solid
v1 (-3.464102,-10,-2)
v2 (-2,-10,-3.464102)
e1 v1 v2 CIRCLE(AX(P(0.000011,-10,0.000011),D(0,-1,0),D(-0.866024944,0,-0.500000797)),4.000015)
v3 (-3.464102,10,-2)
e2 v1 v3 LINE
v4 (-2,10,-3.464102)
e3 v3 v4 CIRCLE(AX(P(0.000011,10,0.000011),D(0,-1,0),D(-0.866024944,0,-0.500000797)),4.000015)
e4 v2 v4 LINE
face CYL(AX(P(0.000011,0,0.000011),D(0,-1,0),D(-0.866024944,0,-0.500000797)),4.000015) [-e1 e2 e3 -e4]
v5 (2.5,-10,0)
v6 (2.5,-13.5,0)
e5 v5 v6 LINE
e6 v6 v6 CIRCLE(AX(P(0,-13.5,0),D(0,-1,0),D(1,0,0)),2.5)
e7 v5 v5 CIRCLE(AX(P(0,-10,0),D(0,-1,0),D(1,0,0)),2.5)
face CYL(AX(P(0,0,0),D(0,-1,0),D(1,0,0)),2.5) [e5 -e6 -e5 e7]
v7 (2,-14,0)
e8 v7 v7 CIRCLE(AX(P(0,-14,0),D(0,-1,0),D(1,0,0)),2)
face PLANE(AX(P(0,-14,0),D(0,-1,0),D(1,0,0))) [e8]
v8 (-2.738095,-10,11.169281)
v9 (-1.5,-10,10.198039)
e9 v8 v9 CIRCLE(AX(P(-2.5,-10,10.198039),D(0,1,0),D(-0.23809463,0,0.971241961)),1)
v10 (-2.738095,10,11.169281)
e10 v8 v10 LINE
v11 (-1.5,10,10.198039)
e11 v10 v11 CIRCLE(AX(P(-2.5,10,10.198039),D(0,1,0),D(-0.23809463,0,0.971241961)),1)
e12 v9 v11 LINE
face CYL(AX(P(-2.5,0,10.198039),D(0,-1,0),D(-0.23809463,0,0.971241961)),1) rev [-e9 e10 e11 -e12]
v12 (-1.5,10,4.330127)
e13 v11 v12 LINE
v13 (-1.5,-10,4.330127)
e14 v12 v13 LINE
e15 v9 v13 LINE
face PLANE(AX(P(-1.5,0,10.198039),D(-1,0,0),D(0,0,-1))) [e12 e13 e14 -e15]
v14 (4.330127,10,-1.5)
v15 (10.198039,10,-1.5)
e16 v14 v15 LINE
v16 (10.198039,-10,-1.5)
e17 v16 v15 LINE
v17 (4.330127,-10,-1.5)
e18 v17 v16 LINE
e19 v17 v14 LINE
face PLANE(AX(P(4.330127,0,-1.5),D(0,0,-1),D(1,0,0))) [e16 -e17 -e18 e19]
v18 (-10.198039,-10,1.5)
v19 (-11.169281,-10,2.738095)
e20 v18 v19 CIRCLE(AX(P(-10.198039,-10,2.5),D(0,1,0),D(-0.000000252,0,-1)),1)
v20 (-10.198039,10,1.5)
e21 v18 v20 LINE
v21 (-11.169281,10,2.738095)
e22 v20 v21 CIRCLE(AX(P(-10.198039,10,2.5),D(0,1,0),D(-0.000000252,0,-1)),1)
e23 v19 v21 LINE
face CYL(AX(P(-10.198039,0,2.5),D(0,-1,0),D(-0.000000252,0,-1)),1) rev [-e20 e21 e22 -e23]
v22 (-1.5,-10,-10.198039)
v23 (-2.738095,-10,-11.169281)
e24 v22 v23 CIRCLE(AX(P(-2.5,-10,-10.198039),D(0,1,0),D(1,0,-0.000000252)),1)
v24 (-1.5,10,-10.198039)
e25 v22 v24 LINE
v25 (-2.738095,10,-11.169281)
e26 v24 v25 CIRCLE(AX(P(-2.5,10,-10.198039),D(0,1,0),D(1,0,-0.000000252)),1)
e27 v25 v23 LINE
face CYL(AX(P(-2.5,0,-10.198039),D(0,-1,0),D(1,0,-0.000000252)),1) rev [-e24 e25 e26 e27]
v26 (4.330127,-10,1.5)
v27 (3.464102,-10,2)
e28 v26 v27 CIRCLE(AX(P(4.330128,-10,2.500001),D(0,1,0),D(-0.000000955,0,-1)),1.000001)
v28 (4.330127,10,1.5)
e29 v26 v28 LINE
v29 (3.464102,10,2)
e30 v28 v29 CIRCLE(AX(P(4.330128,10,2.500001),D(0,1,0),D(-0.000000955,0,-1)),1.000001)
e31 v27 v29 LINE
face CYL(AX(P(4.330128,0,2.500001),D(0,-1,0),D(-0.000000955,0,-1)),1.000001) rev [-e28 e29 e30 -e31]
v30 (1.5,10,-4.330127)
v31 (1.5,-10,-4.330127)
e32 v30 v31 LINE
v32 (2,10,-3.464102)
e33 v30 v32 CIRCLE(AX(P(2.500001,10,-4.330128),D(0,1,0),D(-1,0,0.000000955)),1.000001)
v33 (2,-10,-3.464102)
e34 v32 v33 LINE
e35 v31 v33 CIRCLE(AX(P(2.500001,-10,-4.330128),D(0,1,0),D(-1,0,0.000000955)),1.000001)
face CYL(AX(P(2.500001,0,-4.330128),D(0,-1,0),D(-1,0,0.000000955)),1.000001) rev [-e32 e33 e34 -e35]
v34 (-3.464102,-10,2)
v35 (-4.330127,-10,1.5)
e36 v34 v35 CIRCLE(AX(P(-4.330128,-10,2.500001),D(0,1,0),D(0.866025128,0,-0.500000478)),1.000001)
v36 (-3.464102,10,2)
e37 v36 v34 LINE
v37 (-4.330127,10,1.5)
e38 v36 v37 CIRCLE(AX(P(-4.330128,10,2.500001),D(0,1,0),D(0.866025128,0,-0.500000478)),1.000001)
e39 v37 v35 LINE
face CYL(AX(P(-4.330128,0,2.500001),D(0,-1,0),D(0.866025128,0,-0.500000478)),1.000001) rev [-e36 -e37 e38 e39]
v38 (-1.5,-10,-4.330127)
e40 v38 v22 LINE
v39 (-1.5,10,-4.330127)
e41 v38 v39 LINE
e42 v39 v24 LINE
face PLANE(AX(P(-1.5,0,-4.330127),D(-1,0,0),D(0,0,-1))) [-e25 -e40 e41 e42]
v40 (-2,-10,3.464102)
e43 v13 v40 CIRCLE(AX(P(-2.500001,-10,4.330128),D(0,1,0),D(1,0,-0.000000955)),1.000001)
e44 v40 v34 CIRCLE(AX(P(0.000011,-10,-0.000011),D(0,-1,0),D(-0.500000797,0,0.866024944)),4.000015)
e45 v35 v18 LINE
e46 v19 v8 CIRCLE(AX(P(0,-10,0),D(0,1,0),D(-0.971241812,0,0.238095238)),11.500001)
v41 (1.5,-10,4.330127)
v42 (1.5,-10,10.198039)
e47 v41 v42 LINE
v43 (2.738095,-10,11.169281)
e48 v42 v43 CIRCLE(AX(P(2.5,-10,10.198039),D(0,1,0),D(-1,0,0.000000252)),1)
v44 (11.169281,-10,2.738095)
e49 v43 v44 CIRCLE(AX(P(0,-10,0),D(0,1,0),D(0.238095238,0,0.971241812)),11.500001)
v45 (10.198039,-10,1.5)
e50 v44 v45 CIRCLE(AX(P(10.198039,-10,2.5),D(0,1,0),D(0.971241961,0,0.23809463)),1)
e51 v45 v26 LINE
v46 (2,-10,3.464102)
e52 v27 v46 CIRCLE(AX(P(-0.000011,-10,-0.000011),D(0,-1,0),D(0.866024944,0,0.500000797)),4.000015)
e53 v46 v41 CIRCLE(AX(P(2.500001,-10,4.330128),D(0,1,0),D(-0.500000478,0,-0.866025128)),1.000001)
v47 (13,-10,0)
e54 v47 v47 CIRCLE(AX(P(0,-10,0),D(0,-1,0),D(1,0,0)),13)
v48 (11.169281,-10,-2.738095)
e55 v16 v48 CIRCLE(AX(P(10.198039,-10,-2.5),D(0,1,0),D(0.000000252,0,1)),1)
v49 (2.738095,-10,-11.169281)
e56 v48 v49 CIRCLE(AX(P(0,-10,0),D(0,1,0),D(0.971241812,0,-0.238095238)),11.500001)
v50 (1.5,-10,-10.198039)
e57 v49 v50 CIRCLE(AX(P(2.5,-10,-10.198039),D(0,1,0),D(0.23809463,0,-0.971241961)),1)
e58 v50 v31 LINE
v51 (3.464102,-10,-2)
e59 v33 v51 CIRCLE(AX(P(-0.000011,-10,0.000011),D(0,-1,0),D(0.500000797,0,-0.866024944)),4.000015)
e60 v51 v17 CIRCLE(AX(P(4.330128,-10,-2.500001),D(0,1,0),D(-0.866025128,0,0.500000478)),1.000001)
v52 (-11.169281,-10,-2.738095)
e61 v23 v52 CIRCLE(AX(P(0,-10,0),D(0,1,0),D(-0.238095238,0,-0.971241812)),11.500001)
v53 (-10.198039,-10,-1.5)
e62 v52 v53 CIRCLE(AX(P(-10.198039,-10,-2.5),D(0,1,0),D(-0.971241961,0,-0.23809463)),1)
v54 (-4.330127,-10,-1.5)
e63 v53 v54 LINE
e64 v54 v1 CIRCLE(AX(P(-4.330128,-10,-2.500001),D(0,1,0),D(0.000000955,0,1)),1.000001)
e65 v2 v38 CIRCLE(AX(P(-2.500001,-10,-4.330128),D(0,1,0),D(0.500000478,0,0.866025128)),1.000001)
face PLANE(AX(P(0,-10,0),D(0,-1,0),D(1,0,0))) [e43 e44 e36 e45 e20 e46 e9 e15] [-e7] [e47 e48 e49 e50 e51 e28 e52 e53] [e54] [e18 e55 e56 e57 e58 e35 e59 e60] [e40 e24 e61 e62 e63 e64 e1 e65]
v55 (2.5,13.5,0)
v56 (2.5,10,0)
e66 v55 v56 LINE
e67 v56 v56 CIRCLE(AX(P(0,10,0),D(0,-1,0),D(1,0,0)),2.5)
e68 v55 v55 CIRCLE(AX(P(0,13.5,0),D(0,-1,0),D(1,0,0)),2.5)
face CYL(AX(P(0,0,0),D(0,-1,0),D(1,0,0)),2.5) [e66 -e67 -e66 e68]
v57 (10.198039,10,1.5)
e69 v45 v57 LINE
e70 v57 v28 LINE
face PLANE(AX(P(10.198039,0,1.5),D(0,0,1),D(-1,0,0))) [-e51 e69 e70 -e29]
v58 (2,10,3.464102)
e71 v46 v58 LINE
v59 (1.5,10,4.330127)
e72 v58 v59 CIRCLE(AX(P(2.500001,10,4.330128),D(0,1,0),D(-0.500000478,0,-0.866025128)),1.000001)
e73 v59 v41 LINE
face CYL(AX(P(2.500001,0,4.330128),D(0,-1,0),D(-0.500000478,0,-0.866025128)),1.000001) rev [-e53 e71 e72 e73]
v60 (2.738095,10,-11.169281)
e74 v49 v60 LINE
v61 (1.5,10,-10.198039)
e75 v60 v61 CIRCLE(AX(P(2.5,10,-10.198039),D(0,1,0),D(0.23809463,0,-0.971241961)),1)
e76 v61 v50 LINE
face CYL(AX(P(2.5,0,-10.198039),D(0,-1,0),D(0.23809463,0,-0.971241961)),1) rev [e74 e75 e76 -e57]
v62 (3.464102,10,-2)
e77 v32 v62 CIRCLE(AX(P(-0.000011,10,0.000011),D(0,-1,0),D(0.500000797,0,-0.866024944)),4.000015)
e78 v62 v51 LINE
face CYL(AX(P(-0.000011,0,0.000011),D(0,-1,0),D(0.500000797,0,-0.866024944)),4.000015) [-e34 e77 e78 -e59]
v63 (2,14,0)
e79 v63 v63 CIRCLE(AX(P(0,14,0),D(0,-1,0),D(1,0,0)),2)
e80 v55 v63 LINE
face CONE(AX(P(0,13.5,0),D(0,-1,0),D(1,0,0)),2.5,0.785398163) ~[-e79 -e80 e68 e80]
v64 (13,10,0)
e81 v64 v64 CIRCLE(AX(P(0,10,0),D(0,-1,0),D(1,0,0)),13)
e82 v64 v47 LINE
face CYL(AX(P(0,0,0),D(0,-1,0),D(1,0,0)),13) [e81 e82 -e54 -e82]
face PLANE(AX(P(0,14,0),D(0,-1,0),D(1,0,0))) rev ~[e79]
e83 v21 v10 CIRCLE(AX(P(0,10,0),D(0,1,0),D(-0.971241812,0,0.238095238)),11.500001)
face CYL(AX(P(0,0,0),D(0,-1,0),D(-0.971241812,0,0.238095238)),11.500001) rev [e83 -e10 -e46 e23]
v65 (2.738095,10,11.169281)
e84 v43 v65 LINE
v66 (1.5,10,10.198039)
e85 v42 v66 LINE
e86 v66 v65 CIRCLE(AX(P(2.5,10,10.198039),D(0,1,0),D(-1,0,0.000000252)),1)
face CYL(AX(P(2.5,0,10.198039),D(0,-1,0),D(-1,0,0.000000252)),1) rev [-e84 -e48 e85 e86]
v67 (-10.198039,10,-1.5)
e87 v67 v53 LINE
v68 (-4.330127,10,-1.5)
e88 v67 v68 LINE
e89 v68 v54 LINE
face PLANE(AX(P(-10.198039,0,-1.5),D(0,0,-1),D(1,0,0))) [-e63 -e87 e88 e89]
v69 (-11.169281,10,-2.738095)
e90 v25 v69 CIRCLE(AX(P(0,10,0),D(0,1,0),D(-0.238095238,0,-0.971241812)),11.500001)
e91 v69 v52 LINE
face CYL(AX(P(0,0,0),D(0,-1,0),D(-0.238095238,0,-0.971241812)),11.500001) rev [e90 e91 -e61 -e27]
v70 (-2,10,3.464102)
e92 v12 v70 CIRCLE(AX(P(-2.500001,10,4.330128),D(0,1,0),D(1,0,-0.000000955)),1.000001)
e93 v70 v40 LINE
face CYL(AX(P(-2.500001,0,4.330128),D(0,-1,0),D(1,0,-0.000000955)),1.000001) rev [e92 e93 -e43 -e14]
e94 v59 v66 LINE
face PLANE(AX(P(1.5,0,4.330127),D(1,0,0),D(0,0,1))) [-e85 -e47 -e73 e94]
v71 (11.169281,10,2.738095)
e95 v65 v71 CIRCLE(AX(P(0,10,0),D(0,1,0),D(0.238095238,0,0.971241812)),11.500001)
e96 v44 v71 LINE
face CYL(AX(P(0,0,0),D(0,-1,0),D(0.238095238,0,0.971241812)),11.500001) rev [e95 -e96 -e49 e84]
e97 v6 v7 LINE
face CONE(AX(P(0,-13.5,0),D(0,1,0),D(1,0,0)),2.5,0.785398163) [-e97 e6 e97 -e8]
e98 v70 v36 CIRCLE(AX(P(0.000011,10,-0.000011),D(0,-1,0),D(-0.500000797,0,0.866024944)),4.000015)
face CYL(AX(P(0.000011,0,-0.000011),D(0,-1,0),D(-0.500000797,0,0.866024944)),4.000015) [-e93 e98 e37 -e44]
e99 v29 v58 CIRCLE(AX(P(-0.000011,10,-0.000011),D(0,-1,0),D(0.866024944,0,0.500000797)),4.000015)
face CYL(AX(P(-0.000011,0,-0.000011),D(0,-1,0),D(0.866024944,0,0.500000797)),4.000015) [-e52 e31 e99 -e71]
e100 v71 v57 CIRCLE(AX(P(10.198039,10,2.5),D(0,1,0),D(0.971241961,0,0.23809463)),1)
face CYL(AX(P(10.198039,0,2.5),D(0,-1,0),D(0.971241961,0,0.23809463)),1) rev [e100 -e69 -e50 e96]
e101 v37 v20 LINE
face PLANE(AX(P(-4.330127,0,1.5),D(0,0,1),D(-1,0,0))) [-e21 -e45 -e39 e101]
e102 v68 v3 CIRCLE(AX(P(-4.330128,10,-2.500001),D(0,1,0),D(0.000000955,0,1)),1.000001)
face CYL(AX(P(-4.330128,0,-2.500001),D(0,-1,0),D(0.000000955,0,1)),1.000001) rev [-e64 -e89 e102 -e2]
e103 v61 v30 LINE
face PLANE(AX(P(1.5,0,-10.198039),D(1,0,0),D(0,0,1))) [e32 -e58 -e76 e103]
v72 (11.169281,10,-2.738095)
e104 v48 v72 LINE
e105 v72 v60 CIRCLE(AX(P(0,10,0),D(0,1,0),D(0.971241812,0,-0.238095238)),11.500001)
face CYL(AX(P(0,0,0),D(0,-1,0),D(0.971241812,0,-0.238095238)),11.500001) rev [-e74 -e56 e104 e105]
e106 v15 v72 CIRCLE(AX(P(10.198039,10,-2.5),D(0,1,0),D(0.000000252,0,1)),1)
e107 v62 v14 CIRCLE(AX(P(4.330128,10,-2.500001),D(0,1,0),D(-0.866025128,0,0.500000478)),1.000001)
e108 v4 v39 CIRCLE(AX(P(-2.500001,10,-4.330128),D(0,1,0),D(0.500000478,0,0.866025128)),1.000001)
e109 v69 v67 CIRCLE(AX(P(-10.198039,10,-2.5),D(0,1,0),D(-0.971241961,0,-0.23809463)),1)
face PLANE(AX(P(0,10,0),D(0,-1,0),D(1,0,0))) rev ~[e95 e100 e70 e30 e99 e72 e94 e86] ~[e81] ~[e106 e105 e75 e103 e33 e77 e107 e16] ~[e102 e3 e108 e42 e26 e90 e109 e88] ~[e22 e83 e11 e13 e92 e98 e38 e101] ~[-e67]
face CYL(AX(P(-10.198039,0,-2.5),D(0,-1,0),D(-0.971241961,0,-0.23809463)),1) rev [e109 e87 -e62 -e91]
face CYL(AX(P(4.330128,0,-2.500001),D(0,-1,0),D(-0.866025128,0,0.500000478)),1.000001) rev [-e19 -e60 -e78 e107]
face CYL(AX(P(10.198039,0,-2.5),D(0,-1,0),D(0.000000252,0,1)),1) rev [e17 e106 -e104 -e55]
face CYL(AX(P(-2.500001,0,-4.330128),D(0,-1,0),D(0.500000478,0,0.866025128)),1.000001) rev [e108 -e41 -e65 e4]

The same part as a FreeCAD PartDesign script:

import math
import FreeCAD as App
import Part
import Sketcher
Q = App.Units.Quantity


def edges_at(feature, points):
    """Names of the edges that pass closest to the given points."""
    edges = feature.Shape.Edges
    near = lambda p: min(range(len(edges)), key=lambda i: edges[i].distToShape(Part.Vertex(*p))[0])
    return sorted({f"Edge{near(p) + 1}" for p in points})

doc = App.newDocument("Part")
body = doc.addObject("PartDesign::Body", "Body")

sketch1 = doc.addObject("Sketcher::SketchObject", "Sketch")
body.addObject(sketch1)
sketch1.AttachmentSupport = (doc.XZ_Plane, [""])
sketch1.MapMode = "FlatFace"
sketch1.addGeometry(Part.Circle(App.Vector(0, 0, 0), App.Vector(0, 0, 1), 13), False)
sketch1.addGeometry(Part.ArcOfCircle(Part.Circle(App.Vector(-2.5, -10.2, 0), App.Vector(0, 0, 1), 1), math.radians(-104), math.radians(0)), False)
sketch1.addGeometry(Part.ArcOfCircle(Part.Circle(App.Vector(0, 0, 0), App.Vector(0, 0, 1), 11.5), math.radians(-166), math.radians(-104)), False)
sketch1.addGeometry(Part.ArcOfCircle(Part.Circle(App.Vector(-10.2, -2.5, 0), App.Vector(0, 0, 1), 1), math.radians(90), math.radians(194)), False)
sketch1.addGeometry(Part.LineSegment(App.Vector(-10.2, -1.5, 0), App.Vector(-4.3, -1.5, 0)), False)
sketch1.addGeometry(Part.ArcOfCircle(Part.Circle(App.Vector(-4.3, -2.5, 0), App.Vector(0, 0, 1), 1), math.radians(30), math.radians(90)), False)
sketch1.addGeometry(Part.ArcOfCircle(Part.Circle(App.Vector(0, 0, 0), App.Vector(0, 0, 1), 4), math.radians(-150), math.radians(-120)), False)
sketch1.addGeometry(Part.ArcOfCircle(Part.Circle(App.Vector(-2.5, -4.3, 0), App.Vector(0, 0, 1), 1), math.radians(0), math.radians(60)), False)
sketch1.addGeometry(Part.LineSegment(App.Vector(-1.5, -4.3, 0), App.Vector(-1.5, -10.2, 0)), False)
sketch1.addGeometry(Part.ArcOfCircle(Part.Circle(App.Vector(2.5, -10.2, 0), App.Vector(0, 0, 1), 1), math.radians(-180), math.radians(-76)), False)
sketch1.addGeometry(Part.LineSegment(App.Vector(1.5, -10.2, 0), App.Vector(1.5, -4.3, 0)), False)
sketch1.addGeometry(Part.ArcOfCircle(Part.Circle(App.Vector(2.5, -4.3, 0), App.Vector(0, 0, 1), 1), math.radians(120), math.radians(180)), False)
sketch1.addGeometry(Part.ArcOfCircle(Part.Circle(App.Vector(0, 0, 0), App.Vector(0, 0, 1), 4), math.radians(-60), math.radians(-30)), False)
sketch1.addGeometry(Part.ArcOfCircle(Part.Circle(App.Vector(4.3, -2.5, 0), App.Vector(0, 0, 1), 1), math.radians(90), math.radians(150)), False)
sketch1.addGeometry(Part.LineSegment(App.Vector(4.3, -1.5, 0), App.Vector(10.2, -1.5, 0)), False)
sketch1.addGeometry(Part.ArcOfCircle(Part.Circle(App.Vector(10.2, -2.5, 0), App.Vector(0, 0, 1), 1), math.radians(-14), math.radians(90)), False)
sketch1.addGeometry(Part.ArcOfCircle(Part.Circle(App.Vector(0, 0, 0), App.Vector(0, 0, 1), 11.5), math.radians(-76), math.radians(-14)), False)
sketch1.addGeometry(Part.LineSegment(App.Vector(-1.5, 10.2, 0), App.Vector(-1.5, 4.3, 0)), False)
sketch1.addGeometry(Part.ArcOfCircle(Part.Circle(App.Vector(-2.5, 4.3, 0), App.Vector(0, 0, 1), 1), math.radians(-60), math.radians(0)), False)
sketch1.addGeometry(Part.ArcOfCircle(Part.Circle(App.Vector(0, 0, 0), App.Vector(0, 0, 1), 4), math.radians(120), math.radians(150)), False)
sketch1.addGeometry(Part.ArcOfCircle(Part.Circle(App.Vector(-4.3, 2.5, 0), App.Vector(0, 0, 1), 1), math.radians(-90), math.radians(-30)), False)
sketch1.addGeometry(Part.LineSegment(App.Vector(-4.3, 1.5, 0), App.Vector(-10.2, 1.5, 0)), False)
sketch1.addGeometry(Part.ArcOfCircle(Part.Circle(App.Vector(-10.2, 2.5, 0), App.Vector(0, 0, 1), 1), math.radians(166), math.radians(270)), False)
sketch1.addGeometry(Part.ArcOfCircle(Part.Circle(App.Vector(0, 0, 0), App.Vector(0, 0, 1), 11.5), math.radians(104), math.radians(166)), False)
sketch1.addGeometry(Part.ArcOfCircle(Part.Circle(App.Vector(-2.5, 10.2, 0), App.Vector(0, 0, 1), 1), math.radians(0), math.radians(104)), False)
sketch1.addGeometry(Part.ArcOfCircle(Part.Circle(App.Vector(2.5, 4.3, 0), App.Vector(0, 0, 1), 1), math.radians(-180), math.radians(-120)), False)
sketch1.addGeometry(Part.LineSegment(App.Vector(1.5, 4.3, 0), App.Vector(1.5, 10.2, 0)), False)
sketch1.addGeometry(Part.ArcOfCircle(Part.Circle(App.Vector(2.5, 10.2, 0), App.Vector(0, 0, 1), 1), math.radians(76), math.radians(180)), False)
sketch1.addGeometry(Part.ArcOfCircle(Part.Circle(App.Vector(0, 0, 0), App.Vector(0, 0, 1), 11.5), math.radians(14), math.radians(76)), False)
sketch1.addGeometry(Part.ArcOfCircle(Part.Circle(App.Vector(10.2, 2.5, 0), App.Vector(0, 0, 1), 1), math.radians(-90), math.radians(14)), False)
sketch1.addGeometry(Part.LineSegment(App.Vector(10.2, 1.5, 0), App.Vector(4.3, 1.5, 0)), False)
sketch1.addGeometry(Part.ArcOfCircle(Part.Circle(App.Vector(4.3, 2.5, 0), App.Vector(0, 0, 1), 1), math.radians(-150), math.radians(-90)), False)
sketch1.addGeometry(Part.ArcOfCircle(Part.Circle(App.Vector(0, 0, 0), App.Vector(0, 0, 1), 4), math.radians(30), math.radians(60)), False)
sketch1.addConstraint(Sketcher.Constraint("Tangent", 1, 1, 2, 2))
sketch1.addConstraint(Sketcher.Constraint("Tangent", 2, 1, 3, 2))
sketch1.addConstraint(Sketcher.Constraint("Tangent", 3, 1, 4, 1))
sketch1.addConstraint(Sketcher.Constraint("Tangent", 4, 2, 5, 2))
sketch1.addConstraint(Sketcher.Constraint("Tangent", 5, 1, 6, 1))
sketch1.addConstraint(Sketcher.Constraint("Tangent", 6, 2, 7, 2))
sketch1.addConstraint(Sketcher.Constraint("Tangent", 7, 1, 8, 1))
sketch1.addConstraint(Sketcher.Constraint("Tangent", 8, 2, 1, 2))
sketch1.addConstraint(Sketcher.Constraint("Tangent", 9, 1, 10, 1))
sketch1.addConstraint(Sketcher.Constraint("Tangent", 10, 2, 11, 2))
sketch1.addConstraint(Sketcher.Constraint("Tangent", 11, 1, 12, 1))
sketch1.addConstraint(Sketcher.Constraint("Tangent", 12, 2, 13, 2))
sketch1.addConstraint(Sketcher.Constraint("Tangent", 13, 1, 14, 1))
sketch1.addConstraint(Sketcher.Constraint("Tangent", 14, 2, 15, 2))
sketch1.addConstraint(Sketcher.Constraint("Tangent", 15, 1, 16, 2))
sketch1.addConstraint(Sketcher.Constraint("Tangent", 16, 1, 9, 2))
sketch1.addConstraint(Sketcher.Constraint("Tangent", 17, 2, 18, 2))
sketch1.addConstraint(Sketcher.Constraint("Tangent", 18, 1, 19, 1))
sketch1.addConstraint(Sketcher.Constraint("Tangent", 19, 2, 20, 2))
sketch1.addConstraint(Sketcher.Constraint("Tangent", 20, 1, 21, 1))
sketch1.addConstraint(Sketcher.Constraint("Tangent", 21, 2, 22, 2))
sketch1.addConstraint(Sketcher.Constraint("Tangent", 22, 1, 23, 2))
sketch1.addConstraint(Sketcher.Constraint("Tangent", 23, 1, 24, 2))
sketch1.addConstraint(Sketcher.Constraint("Tangent", 24, 1, 17, 1))
sketch1.addConstraint(Sketcher.Constraint("Tangent", 25, 1, 26, 1))
sketch1.addConstraint(Sketcher.Constraint("Tangent", 26, 2, 27, 2))
sketch1.addConstraint(Sketcher.Constraint("Tangent", 27, 1, 28, 2))
sketch1.addConstraint(Sketcher.Constraint("Tangent", 28, 1, 29, 2))
sketch1.addConstraint(Sketcher.Constraint("Tangent", 29, 1, 30, 1))
sketch1.addConstraint(Sketcher.Constraint("Tangent", 30, 2, 31, 2))
sketch1.addConstraint(Sketcher.Constraint("Tangent", 31, 1, 32, 1))
sketch1.addConstraint(Sketcher.Constraint("Tangent", 32, 2, 25, 2))
sketch1.addConstraint(Sketcher.Constraint("Horizontal", 4))
sketch1.addConstraint(Sketcher.Constraint("Vertical", 8))
sketch1.addConstraint(Sketcher.Constraint("Vertical", 10))
sketch1.addConstraint(Sketcher.Constraint("Horizontal", 14))
sketch1.addConstraint(Sketcher.Constraint("Vertical", 17))
sketch1.addConstraint(Sketcher.Constraint("Horizontal", 21))
sketch1.addConstraint(Sketcher.Constraint("Vertical", 26))
sketch1.addConstraint(Sketcher.Constraint("Horizontal", 30))
sketch1.addConstraint(Sketcher.Constraint("Coincident", 0, 3, -1, 1))
sketch1.addConstraint(Sketcher.Constraint("Coincident", 2, 3, -1, 1))
sketch1.addConstraint(Sketcher.Constraint("Coincident", 16, 3, -1, 1))
sketch1.addConstraint(Sketcher.Constraint("Coincident", 23, 3, -1, 1))
sketch1.addConstraint(Sketcher.Constraint("Coincident", 28, 3, -1, 1))
sketch1.addConstraint(Sketcher.Constraint("Equal", 1, 3))
sketch1.addConstraint(Sketcher.Constraint("Equal", 3, 5))
sketch1.addConstraint(Sketcher.Constraint("Equal", 5, 7))
sketch1.addConstraint(Sketcher.Constraint("Equal", 7, 9))
sketch1.addConstraint(Sketcher.Constraint("Equal", 9, 11))
sketch1.addConstraint(Sketcher.Constraint("Equal", 6, 12))
sketch1.addConstraint(Sketcher.Constraint("Equal", 11, 13))
sketch1.addConstraint(Sketcher.Constraint("Equal", 13, 15))
sketch1.addConstraint(Sketcher.Constraint("Equal", 2, 16))
sketch1.addConstraint(Sketcher.Constraint("Equal", 15, 18))
sketch1.addConstraint(Sketcher.Constraint("Equal", 12, 19))
sketch1.addConstraint(Sketcher.Constraint("Equal", 18, 20))
sketch1.addConstraint(Sketcher.Constraint("Equal", 20, 22))
sketch1.addConstraint(Sketcher.Constraint("Equal", 16, 23))
sketch1.addConstraint(Sketcher.Constraint("Equal", 22, 24))
sketch1.addConstraint(Sketcher.Constraint("Equal", 24, 25))
sketch1.addConstraint(Sketcher.Constraint("Equal", 25, 27))
sketch1.addConstraint(Sketcher.Constraint("Equal", 23, 28))
sketch1.addConstraint(Sketcher.Constraint("Equal", 27, 29))
sketch1.addConstraint(Sketcher.Constraint("Equal", 29, 31))
sketch1.addConstraint(Sketcher.Constraint("Equal", 19, 32))
sketch1.addConstraint(Sketcher.Constraint("Symmetric", 11, 3, 18, 3, -1, 1))
sketch1.addConstraint(Sketcher.Constraint("Symmetric", 13, 3, 20, 3, -1, 1))
sketch1.addConstraint(Sketcher.Constraint("Symmetric", 7, 3, 25, 3, -1, 1))
sketch1.addConstraint(Sketcher.Constraint("Symmetric", 5, 3, 31, 3, -1, 1))
sketch1.addConstraint(Sketcher.Constraint("Symmetric", 7, 3, 11, 3, -2))
sketch1.addConstraint(Sketcher.Constraint("Symmetric", 5, 3, 13, 3, -2))
sketch1.addConstraint(Sketcher.Constraint("Equal", 30, 8))
sketch1.addConstraint(Sketcher.Constraint("Diameter", 0, Q("26 mm")))
sketch1.addConstraint(Sketcher.Constraint("Radius", 1, Q("1 mm")))
sketch1.addConstraint(Sketcher.Constraint("Radius", 2, Q("11.500001 mm")))
sketch1.addConstraint(Sketcher.Constraint("DistanceY", 5, 1, -1, 1, Q("2 mm")))
sketch1.addConstraint(Sketcher.Constraint("DistanceX", 6, 2, -1, 1, Q("2 mm")))
sketch1.addConstraint(Sketcher.Constraint("DistanceX", 1, 3, 9, 3, Q("5.000001 mm")))
sketch1.addConstraint(Sketcher.Constraint("Radius", 6, Q("4.000015 mm")))
pad1 = doc.addObject("PartDesign::Pad", "Pad")
body.addObject(pad1)
pad1.Profile = sketch1
pad1.Length = 20
pad1.Midplane = True

sketch2 = doc.addObject("Sketcher::SketchObject", "Sketch001")
body.addObject(sketch2)
sketch2.AttachmentSupport = (doc.XZ_Plane, [""])
sketch2.MapMode = "FlatFace"
sketch2.addGeometry(Part.Circle(App.Vector(0, 0, 0), App.Vector(0, 0, 1), 2.5), False)
sketch2.addConstraint(Sketcher.Constraint("Coincident", 0, 3, -1, 1))
sketch2.addConstraint(Sketcher.Constraint("Diameter", 0, Q("5 mm")))
pad2 = doc.addObject("PartDesign::Pad", "Pad001")
body.addObject(pad2)
pad2.Profile = sketch2
pad2.Length = 28
pad2.Midplane = True
doc.recompute()

chamfer = doc.addObject("PartDesign::Chamfer", "Chamfer")
body.addObject(chamfer)
chamfer.Base = (pad2, edges_at(pad2, [(-2.5, -14, 0), (-2.5, 14, 0)]))
chamfer.Size = 0.5

doc.recompute()
